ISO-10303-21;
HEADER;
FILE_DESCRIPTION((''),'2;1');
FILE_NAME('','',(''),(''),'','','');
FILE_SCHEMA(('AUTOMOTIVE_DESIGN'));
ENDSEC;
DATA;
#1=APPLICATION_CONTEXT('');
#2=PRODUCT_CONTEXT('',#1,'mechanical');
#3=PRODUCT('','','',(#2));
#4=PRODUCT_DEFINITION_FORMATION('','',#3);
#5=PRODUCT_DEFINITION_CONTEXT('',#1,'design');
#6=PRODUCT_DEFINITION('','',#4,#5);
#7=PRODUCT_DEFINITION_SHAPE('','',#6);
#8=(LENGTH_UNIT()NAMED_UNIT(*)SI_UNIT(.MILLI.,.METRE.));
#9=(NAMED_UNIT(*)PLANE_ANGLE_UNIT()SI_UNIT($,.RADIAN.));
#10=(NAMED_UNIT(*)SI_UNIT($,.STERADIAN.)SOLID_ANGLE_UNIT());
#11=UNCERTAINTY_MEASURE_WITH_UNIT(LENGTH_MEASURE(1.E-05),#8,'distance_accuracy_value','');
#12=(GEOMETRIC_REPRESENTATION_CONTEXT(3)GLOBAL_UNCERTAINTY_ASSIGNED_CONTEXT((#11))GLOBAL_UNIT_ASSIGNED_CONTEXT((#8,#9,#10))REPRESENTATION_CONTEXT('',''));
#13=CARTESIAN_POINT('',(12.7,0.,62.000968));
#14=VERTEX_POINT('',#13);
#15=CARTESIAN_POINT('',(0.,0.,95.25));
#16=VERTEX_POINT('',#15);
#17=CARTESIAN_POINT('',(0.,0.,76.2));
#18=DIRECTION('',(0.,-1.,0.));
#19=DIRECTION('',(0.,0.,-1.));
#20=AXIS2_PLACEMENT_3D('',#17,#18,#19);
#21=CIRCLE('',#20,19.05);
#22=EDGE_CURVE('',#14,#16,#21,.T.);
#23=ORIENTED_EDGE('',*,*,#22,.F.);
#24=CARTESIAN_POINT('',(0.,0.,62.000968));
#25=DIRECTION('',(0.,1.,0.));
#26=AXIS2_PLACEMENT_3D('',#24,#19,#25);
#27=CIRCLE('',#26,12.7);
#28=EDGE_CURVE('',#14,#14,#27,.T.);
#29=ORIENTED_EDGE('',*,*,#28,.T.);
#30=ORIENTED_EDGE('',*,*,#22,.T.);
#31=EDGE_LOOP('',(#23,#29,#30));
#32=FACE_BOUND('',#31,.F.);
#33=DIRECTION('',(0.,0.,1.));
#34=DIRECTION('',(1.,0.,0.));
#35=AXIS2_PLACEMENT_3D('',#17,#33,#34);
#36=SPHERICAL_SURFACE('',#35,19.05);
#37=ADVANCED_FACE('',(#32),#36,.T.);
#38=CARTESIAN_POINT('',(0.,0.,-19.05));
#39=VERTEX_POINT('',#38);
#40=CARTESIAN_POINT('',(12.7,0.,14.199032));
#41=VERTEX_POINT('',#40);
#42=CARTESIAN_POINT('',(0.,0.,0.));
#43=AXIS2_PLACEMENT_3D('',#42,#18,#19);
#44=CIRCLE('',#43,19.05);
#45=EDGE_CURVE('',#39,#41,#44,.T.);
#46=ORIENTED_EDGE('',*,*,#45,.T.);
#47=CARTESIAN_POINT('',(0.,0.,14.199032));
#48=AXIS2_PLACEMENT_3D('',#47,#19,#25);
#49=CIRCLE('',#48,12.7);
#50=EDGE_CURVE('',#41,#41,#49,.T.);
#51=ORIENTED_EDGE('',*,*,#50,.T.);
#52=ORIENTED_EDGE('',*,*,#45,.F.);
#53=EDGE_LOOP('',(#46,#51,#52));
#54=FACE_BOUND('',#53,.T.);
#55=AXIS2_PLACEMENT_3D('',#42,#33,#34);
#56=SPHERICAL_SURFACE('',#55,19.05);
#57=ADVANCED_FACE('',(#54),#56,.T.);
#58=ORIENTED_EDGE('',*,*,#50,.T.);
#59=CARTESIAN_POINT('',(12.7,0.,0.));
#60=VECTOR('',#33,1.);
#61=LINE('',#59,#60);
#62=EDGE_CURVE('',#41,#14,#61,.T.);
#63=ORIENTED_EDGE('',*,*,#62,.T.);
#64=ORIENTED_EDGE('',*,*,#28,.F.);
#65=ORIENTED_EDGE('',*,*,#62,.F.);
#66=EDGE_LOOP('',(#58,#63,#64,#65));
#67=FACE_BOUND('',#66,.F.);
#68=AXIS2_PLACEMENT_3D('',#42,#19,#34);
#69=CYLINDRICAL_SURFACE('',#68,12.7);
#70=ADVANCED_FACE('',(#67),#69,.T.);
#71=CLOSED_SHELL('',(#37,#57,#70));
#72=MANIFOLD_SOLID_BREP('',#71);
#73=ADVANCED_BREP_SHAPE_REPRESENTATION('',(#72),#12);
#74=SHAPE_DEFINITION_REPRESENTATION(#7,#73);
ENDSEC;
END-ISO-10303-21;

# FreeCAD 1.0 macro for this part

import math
import FreeCAD as App
import Part
import Sketcher
Q = App.Units.Quantity

doc = App.newDocument("Part")
body = doc.addObject("PartDesign::Body", "Body")

sketch1 = body.newObject("Sketcher::SketchObject", "Sketch")
sketch1.AttachmentSupport = (doc.getObject("XY_Plane"), [""])
sketch1.MapMode = "FlatFace"
sketch1.addGeometry(Part.Circle(App.Vector(0, 0, 0), App.Vector(0, 0, 1), 13), False)
sketch1.addConstraint([
    Sketcher.Constraint("Coincident", 0, 3, -1, 1),
    Sketcher.Constraint("Diameter", 0, Q("1 in")),
])
pad1 = body.newObject("PartDesign::Pad", "Pad")
pad1.Profile = sketch1
pad1.Length = Q("3 in")

sketch2 = body.newObject("Sketcher::SketchObject", "Sketch001")
sketch2.AttachmentSupport = (doc.getObject("XZ_Plane"), [""])
sketch2.MapMode = "FlatFace"
sketch2.addGeometry([
    Part.ArcOfCircle(Part.Circle(App.Vector(0, 76, 0), App.Vector(0, 0, 1), 19), math.radians(-90), math.radians(90)),
    Part.LineSegment(App.Vector(0, 95, 0), App.Vector(0, 57, 0)),
], False)
sketch2.addConstraint([
    Sketcher.Constraint("Coincident", 0, 1, 1, 2),
    Sketcher.Constraint("Coincident", 1, 1, 0, 2),
    Sketcher.Constraint("Vertical", 1),
    Sketcher.Constraint("PointOnObject", 0, 3, -2),
    Sketcher.Constraint("PointOnObject", 0, 1, -2),
    Sketcher.Constraint("Radius", 0, Q("0.75 in")),
    Sketcher.Constraint("DistanceY", -1, 1, 0, 3, Q("3 in")),
])
revolution = body.newObject("PartDesign::Revolution", "Revolution")
revolution.Profile = sketch2
revolution.ReferenceAxis = (sketch2, ["V_Axis"])
revolution.Angle = 360

sketch3 = body.newObject("Sketcher::SketchObject", "Sketch002")
sketch3.AttachmentSupport = (doc.getObject("XZ_Plane"), [""])
sketch3.MapMode = "FlatFace"
sketch3.addGeometry([
    Part.ArcOfCircle(Part.Circle(App.Vector(0, 0, 0), App.Vector(0, 0, 1), 19), math.radians(-90), math.radians(90)),
    Part.LineSegment(App.Vector(0, 19, 0), App.Vector(0, -19, 0)),
], False)
sketch3.addConstraint([
    Sketcher.Constraint("Coincident", 0, 1, 1, 2),
    Sketcher.Constraint("Coincident", 1, 1, 0, 2),
    Sketcher.Constraint("Vertical", 1),
    Sketcher.Constraint("Coincident", 0, 3, -1, 1),
    Sketcher.Constraint("PointOnObject", 0, 1, -2),
    Sketcher.Constraint("Radius", 0, Q("0.75 in")),
])
revolution2 = body.newObject("PartDesign::Revolution", "Revolution001")
revolution2.Profile = sketch3
revolution2.ReferenceAxis = (sketch3, ["V_Axis"])
revolution2.Angle = 360

doc.recompute()
